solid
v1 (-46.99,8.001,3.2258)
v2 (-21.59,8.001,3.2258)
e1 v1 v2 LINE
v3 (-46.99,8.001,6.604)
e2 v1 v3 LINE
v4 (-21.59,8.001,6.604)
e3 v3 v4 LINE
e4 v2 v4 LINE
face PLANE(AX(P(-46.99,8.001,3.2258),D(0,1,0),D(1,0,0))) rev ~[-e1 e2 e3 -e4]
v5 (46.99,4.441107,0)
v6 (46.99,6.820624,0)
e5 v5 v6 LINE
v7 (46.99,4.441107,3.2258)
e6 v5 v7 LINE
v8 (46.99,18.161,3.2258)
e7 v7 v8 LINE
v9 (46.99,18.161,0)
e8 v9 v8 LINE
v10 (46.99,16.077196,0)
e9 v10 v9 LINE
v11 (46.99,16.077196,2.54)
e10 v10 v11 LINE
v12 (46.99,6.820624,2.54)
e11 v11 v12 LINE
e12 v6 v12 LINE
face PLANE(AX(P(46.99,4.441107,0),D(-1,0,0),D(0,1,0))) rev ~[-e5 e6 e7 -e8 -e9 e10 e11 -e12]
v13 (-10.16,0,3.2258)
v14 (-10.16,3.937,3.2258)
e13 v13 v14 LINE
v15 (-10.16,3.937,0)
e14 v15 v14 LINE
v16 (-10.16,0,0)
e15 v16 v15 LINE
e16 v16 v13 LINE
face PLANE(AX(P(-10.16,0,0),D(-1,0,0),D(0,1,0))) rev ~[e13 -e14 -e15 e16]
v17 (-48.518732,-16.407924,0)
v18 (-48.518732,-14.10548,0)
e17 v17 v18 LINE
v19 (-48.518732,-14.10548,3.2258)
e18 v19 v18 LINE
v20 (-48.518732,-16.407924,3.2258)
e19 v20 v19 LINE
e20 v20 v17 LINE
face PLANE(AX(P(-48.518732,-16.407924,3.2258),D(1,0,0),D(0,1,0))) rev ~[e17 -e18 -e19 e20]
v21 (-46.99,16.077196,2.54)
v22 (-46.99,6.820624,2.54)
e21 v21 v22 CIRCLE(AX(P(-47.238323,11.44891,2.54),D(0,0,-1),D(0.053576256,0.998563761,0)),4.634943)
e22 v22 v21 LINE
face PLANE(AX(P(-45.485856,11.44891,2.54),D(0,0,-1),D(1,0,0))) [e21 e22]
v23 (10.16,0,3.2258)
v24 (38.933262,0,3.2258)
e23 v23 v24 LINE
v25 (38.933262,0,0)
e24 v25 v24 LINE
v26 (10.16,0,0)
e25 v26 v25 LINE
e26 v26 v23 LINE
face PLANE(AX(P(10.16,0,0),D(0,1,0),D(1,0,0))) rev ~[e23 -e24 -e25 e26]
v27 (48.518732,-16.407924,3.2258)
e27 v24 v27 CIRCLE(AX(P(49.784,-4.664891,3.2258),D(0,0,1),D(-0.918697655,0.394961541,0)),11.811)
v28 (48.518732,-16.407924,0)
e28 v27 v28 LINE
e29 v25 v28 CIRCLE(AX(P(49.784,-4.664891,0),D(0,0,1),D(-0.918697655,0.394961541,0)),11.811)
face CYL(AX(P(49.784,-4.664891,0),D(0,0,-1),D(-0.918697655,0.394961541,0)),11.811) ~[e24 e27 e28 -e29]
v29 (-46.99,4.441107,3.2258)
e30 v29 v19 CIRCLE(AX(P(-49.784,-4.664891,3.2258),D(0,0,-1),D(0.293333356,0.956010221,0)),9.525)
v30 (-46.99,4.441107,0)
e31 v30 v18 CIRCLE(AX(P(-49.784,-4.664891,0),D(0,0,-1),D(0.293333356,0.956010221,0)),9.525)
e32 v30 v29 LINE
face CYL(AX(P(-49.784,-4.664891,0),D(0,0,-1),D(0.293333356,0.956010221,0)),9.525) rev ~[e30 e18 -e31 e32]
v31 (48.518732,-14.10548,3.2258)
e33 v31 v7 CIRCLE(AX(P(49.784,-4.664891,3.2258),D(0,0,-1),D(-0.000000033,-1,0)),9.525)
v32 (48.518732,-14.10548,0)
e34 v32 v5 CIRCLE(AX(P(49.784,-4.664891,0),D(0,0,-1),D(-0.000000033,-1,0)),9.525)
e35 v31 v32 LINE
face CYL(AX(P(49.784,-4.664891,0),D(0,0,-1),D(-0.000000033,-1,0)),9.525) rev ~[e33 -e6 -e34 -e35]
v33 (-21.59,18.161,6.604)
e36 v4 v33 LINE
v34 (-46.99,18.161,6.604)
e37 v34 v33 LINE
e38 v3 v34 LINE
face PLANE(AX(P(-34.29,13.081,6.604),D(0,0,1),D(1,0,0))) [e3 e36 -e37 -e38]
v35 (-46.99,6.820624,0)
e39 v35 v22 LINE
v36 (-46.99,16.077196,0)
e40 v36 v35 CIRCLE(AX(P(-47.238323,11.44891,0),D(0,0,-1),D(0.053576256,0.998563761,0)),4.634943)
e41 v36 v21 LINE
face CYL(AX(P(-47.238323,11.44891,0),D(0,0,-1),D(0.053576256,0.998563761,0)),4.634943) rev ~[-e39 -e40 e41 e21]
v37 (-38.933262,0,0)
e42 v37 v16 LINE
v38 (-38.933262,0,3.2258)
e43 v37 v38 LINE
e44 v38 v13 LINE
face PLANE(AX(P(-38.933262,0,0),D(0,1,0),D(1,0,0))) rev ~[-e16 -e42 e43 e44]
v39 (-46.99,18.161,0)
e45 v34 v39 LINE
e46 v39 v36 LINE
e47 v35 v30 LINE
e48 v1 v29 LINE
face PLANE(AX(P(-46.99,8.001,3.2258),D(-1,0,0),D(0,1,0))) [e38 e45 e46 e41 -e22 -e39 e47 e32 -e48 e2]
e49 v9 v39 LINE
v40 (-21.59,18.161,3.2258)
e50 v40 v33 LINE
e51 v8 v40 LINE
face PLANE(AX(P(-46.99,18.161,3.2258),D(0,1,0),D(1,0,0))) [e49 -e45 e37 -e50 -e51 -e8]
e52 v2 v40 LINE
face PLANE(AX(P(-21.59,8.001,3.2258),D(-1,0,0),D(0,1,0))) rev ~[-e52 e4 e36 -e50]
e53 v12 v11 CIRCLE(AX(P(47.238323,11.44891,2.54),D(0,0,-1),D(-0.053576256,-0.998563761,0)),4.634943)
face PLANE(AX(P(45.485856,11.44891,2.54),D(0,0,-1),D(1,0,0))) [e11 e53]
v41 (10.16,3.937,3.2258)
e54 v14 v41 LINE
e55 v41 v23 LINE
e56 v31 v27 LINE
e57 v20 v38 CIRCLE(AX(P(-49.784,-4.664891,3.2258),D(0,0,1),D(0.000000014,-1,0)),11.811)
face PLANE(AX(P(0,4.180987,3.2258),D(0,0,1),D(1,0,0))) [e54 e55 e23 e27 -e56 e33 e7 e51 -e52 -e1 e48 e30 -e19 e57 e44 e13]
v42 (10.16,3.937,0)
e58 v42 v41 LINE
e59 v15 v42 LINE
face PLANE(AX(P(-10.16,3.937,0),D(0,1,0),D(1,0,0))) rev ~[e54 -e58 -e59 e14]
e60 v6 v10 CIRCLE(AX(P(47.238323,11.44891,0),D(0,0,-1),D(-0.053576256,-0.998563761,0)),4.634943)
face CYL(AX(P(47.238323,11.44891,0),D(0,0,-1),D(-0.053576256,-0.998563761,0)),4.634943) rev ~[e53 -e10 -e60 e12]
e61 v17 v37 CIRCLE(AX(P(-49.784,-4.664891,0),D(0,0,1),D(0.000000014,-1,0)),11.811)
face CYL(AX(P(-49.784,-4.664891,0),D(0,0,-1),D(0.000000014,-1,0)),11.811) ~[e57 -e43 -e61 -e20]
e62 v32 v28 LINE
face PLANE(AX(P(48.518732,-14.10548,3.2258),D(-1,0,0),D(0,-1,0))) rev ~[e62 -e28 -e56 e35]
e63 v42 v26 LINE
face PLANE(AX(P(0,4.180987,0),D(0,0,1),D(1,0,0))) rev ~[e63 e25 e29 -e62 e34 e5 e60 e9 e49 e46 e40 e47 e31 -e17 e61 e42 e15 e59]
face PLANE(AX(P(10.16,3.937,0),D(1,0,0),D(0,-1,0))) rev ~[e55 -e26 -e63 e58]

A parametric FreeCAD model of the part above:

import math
import FreeCAD as App
import Part
import Sketcher
from FreeCAD import Vector
Q = App.Units.Quantity

doc = App.newDocument("Part")
body = doc.addObject("PartDesign::Body", "Body")

# Sketch on XY plane
sketch1 = body.newObject("Sketcher::SketchObject", "Sketch")
sketch1.AttachmentSupport = (doc.getObject("XY_Plane"), [""])
sketch1.MapMode = "FlatFace"
sketch1.addGeometry(Part.LineSegment(Vector(46.99, 18.161, 0), Vector(-46.99, 18.161, 0)), False)
sketch1.addGeometry(Part.LineSegment(Vector(-46.99, 18.161, 0), Vector(-46.99, 4.441107, 0)), False)
sketch1.addGeometry(Part.ArcOfCircle(Part.Circle(Vector(-49.784, -4.664891, 0), Vector(0, 0, 1), 9.525), math.radians(-89.999998), math.radians(72.942375)), False)
sketch1.addGeometry(Part.LineSegment(Vector(-49.784, -14.189891, 0), Vector(-49.784, -16.475891, 0)), False)
sketch1.addGeometry(Part.ArcOfCircle(Part.Circle(Vector(-49.784, -4.664891, 0), Vector(0, 0, 1), 11.811), math.radians(-89.999999), math.radians(23.263575)), False)
sketch1.addGeometry(Part.LineSegment(Vector(-38.933262, 0, 0), Vector(-10.16, 0, 0)), False)
sketch1.addGeometry(Part.LineSegment(Vector(-10.16, 0, 0), Vector(-10.16, 3.937, 0)), False)
sketch1.addGeometry(Part.LineSegment(Vector(-10.16, 3.937, 0), Vector(10.16, 3.937, 0)), False)
sketch1.addGeometry(Part.LineSegment(Vector(10.16, 3.937, 0), Vector(10.16, 0, 0)), False)
sketch1.addGeometry(Part.LineSegment(Vector(10.16, 0, 0), Vector(38.933262, 0, 0)), False)
sketch1.addGeometry(Part.ArcOfCircle(Part.Circle(Vector(49.784, -4.664891, 0), Vector(0, 0, 1), 11.811), math.radians(156.736425), math.radians(269.999999)), False)
sketch1.addGeometry(Part.LineSegment(Vector(49.784, -16.475891, 0), Vector(49.784, -14.189891, 0)), False)
sketch1.addGeometry(Part.ArcOfCircle(Part.Circle(Vector(49.784, -4.664891, 0), Vector(0, 0, 1), 9.525), math.radians(107.057625), math.radians(269.999998)), False)
sketch1.addGeometry(Part.LineSegment(Vector(46.99, 4.441107, 0), Vector(46.99, 18.161, 0)), False)
sketch1.addConstraint(Sketcher.Constraint("Coincident", 0, 2, 1, 1))
sketch1.addConstraint(Sketcher.Constraint("Coincident", 1, 2, 2, 2))
sketch1.addConstraint(Sketcher.Constraint("Coincident", 2, 1, 3, 1))
sketch1.addConstraint(Sketcher.Constraint("Coincident", 3, 2, 4, 1))
sketch1.addConstraint(Sketcher.Constraint("Coincident", 4, 2, 5, 1))
sketch1.addConstraint(Sketcher.Constraint("Coincident", 5, 2, 6, 1))
sketch1.addConstraint(Sketcher.Constraint("Coincident", 6, 2, 7, 1))
sketch1.addConstraint(Sketcher.Constraint("Coincident", 7, 2, 8, 1))
sketch1.addConstraint(Sketcher.Constraint("Coincident", 8, 2, 9, 1))
sketch1.addConstraint(Sketcher.Constraint("Coincident", 9, 2, 10, 1))
sketch1.addConstraint(Sketcher.Constraint("Coincident", 10, 2, 11, 1))
sketch1.addConstraint(Sketcher.Constraint("Coincident", 11, 2, 12, 2))
sketch1.addConstraint(Sketcher.Constraint("Coincident", 12, 1, 13, 1))
sketch1.addConstraint(Sketcher.Constraint("Coincident", 13, 2, 0, 1))
sketch1.addConstraint(Sketcher.Constraint("Horizontal", 0))
sketch1.addConstraint(Sketcher.Constraint("Vertical", 1))
sketch1.addConstraint(Sketcher.Constraint("Vertical", 3))
sketch1.addConstraint(Sketcher.Constraint("Horizontal", 5))
sketch1.addConstraint(Sketcher.Constraint("Vertical", 6))
sketch1.addConstraint(Sketcher.Constraint("Horizontal", 7))
sketch1.addConstraint(Sketcher.Constraint("Vertical", 8))
sketch1.addConstraint(Sketcher.Constraint("Horizontal", 9))
sketch1.addConstraint(Sketcher.Constraint("Vertical", 11))
sketch1.addConstraint(Sketcher.Constraint("Vertical", 13))
sketch1.addConstraint(Sketcher.Constraint("Coincident", 4, 3, 2, 3))
sketch1.addConstraint(Sketcher.Constraint("Coincident", 12, 3, 10, 3))
sketch1.addConstraint(Sketcher.Constraint("Equal", 4, 10))
sketch1.addConstraint(Sketcher.Constraint("Equal", 2, 12))
sketch1.addConstraint(Sketcher.Constraint("Symmetric", 5, 2, 8, 2, -1, 1))
sketch1.addConstraint(Sketcher.Constraint("Symmetric", 2, 3, 10, 3, -2))
sketch1.addConstraint(Sketcher.Constraint("PointOnObject", 4, 2, -1))
sketch1.addConstraint(Sketcher.Constraint("Horizontal", 1, 2, 12, 1))
sketch1.addConstraint(Sketcher.Constraint("Vertical", 4, 3, 2, 1))
sketch1.addConstraint(Sketcher.Constraint("Vertical", 12, 3, 10, 2))
sketch1.addConstraint(Sketcher.Constraint("DistanceX", 0, 2, 0, 1, Q("3.7 in")))
sketch1.addConstraint(Sketcher.Constraint("DistanceX", 7, 1, 7, 2, Q("0.8 in")))
sketch1.addConstraint(Sketcher.Constraint("Radius", 2, Q("0.375 in")))
sketch1.addConstraint(Sketcher.Constraint("Radius", 4, Q("0.465 in")))
sketch1.addConstraint(Sketcher.Constraint("DistanceY", 6, 1, 6, 2, Q("0.155 in")))
sketch1.addConstraint(Sketcher.Constraint("DistanceX", 2, 3, -1, 1, Q("1.96 in")))
sketch1.addConstraint(Sketcher.Constraint("DistanceY", 6, 2, 0, 2, Q("0.56 in")))
sketch1.addConstraint(Sketcher.Constraint("DistanceX", 5, 1, 5, 2, 28.773262))
pad1 = body.newObject("PartDesign::Pad", "Pad")
pad1.Profile = sketch1
pad1.Length = Q("0.127 in")

# Sketch on XY plane
sketch2 = body.newObject("Sketcher::SketchObject", "Sketch001")
sketch2.AttachmentSupport = (doc.getObject("XY_Plane"), [""])
sketch2.MapMode = "FlatFace"
sketch2.AttachmentOffset = App.Placement(Vector(0, 0, 0.127 * 25.4), App.Rotation())
sketch2.addGeometry(Part.LineSegment(Vector(-46.99, 18.161, 0), Vector(-46.99, 8.001, 0)), False)
sketch2.addGeometry(Part.LineSegment(Vector(-46.99, 8.001, 0), Vector(-21.59, 8.001, 0)), False)
sketch2.addGeometry(Part.LineSegment(Vector(-21.59, 8.001, 0), Vector(-21.59, 18.161, 0)), False)
sketch2.addGeometry(Part.LineSegment(Vector(-21.59, 18.161, 0), Vector(-46.99, 18.161, 0)), False)
sketch2.addConstraint(Sketcher.Constraint("Coincident", 0, 2, 1, 1))
sketch2.addConstraint(Sketcher.Constraint("Coincident", 1, 2, 2, 1))
sketch2.addConstraint(Sketcher.Constraint("Coincident", 2, 2, 3, 1))
sketch2.addConstraint(Sketcher.Constraint("Coincident", 3, 2, 0, 1))
sketch2.addConstraint(Sketcher.Constraint("Vertical", 0))
sketch2.addConstraint(Sketcher.Constraint("Horizontal", 1))
sketch2.addConstraint(Sketcher.Constraint("Vertical", 2))
sketch2.addConstraint(Sketcher.Constraint("Horizontal", 3))
sketch2.addConstraint(Sketcher.Constraint("DistanceX", 1, 1, 1, 2, Q("1 in")))
sketch2.addConstraint(Sketcher.Constraint("DistanceY", 0, 2, 0, 1, Q("0.4 in")))
sketch2.addConstraint(Sketcher.Constraint("DistanceX", 0, 2, -1, 1, Q("1.85 in")))
sketch2.addConstraint(Sketcher.Constraint("DistanceY", -1, 1, 0, 2, Q("0.315 in")))
pad2 = body.newObject("PartDesign::Pad", "Pad001")
pad2.Profile = sketch2
pad2.Length = Q("0.133 in")

# Sketch on XY plane
sketch3 = body.newObject("Sketcher::SketchObject", "Sketch002")
sketch3.AttachmentSupport = (doc.getObject("XY_Plane"), [""])
sketch3.MapMode = "FlatFace"
sketch3.addGeometry(Part.LineSegment(Vector(-46.99, 6.820624, 0), Vector(-46.99, 16.077196, 0)), False)
sketch3.addGeometry(Part.ArcOfCircle(Part.Circle(Vector(-47.238323, 11.44891, 0), Vector(0, 0, 1), 4.634943), math.radians(-86.928836), math.radians(86.928836)), False)
sketch3.addGeometry(Part.ArcOfCircle(Part.Circle(Vector(47.238323, 11.44891, 0), Vector(0, 0, 1), 4.634943), math.radians(93.071164), math.radians(266.928836)), False)
sketch3.addGeometry(Part.LineSegment(Vector(46.99, 16.077196, 0), Vector(46.99, 6.820624, 0)), False)
sketch3.addConstraint(Sketcher.Constraint("Coincident", 0, 1, 1, 1))
sketch3.addConstraint(Sketcher.Constraint("Coincident", 1, 2, 0, 2))
sketch3.addConstraint(Sketcher.Constraint("Coincident", 2, 1, 3, 1))
sketch3.addConstraint(Sketcher.Constraint("Coincident", 3, 2, 2, 2))
sketch3.addConstraint(Sketcher.Constraint("Vertical", 0))
sketch3.addConstraint(Sketcher.Constraint("Vertical", 3))
sketch3.addConstraint(Sketcher.Constraint("Equal", 1, 2))
sketch3.addConstraint(Sketcher.Constraint("Symmetric", 1, 3, 2, 3, -2))
sketch3.addConstraint(Sketcher.Constraint("Horizontal", 1, 2, 2, 1))
sketch3.addConstraint(Sketcher.Constraint("DistanceX", 1, 2, 2, 1, Q("3.7 in")))
sketch3.addConstraint(Sketcher.Constraint("Radius", 1, 4.634943))
sketch3.addConstraint(Sketcher.Constraint("DistanceY", 0, 1, 0, 2, 9.256572))
sketch3.addConstraint(Sketcher.Constraint("DistanceY", -1, 1, 1, 3, 11.44891))
pocket1 = body.newObject("PartDesign::Pocket", "Pocket")
pocket1.Profile = sketch3
pocket1.Length = Q("0.1 in")
pocket1.Reversed = True

# Sketch on XY plane
sketch4 = body.newObject("Sketcher::SketchObject", "Sketch003")
sketch4.AttachmentSupport = (doc.getObject("XY_Plane"), [""])
sketch4.MapMode = "FlatFace"
sketch4.AttachmentOffset = App.Placement(Vector(0, 0, 0.127 * 25.4), App.Rotation())
sketch4.addGeometry(Part.LineSegment(Vector(-48.518732, -16.407924, 0), Vector(-48.518732, -14.10548, 0)), False)
sketch4.addGeometry(Part.ArcOfCircle(Part.Circle(Vector(-49.783993, -4.665, 0), Vector(0, 0, 1), 9.524891), math.radians(-90.000041), math.radians(-82.366418)), False)
sketch4.addGeometry(Part.LineSegment(Vector(-49.784, -14.189891, 0), Vector(-49.784, -16.475891, 0)), False)
sketch4.addGeometry(Part.ArcOfCircle(Part.Circle(Vector(-49.784001, -4.664835, 0), Vector(0, 0, 1), 11.811056), math.radians(-89.999997), math.radians(-83.850344)), False)
sketch4.addGeometry(Part.ArcOfCircle(Part.Circle(Vector(49.784001, -4.664835, 0), Vector(0, 0, 1), 11.811056), math.radians(-96.149656), math.radians(-90.000003)), False)
sketch4.addGeometry(Part.LineSegment(Vector(49.784, -16.475891, 0), Vector(49.784, -14.189891, 0)), False)
sketch4.addGeometry(Part.ArcOfCircle(Part.Circle(Vector(49.783993, -4.665, 0), Vector(0, 0, 1), 9.524891), math.radians(-97.633582), math.radians(-89.999959)), False)
sketch4.addGeometry(Part.LineSegment(Vector(48.518732, -14.10548, 0), Vector(48.518732, -16.407924, 0)), False)
sketch4.addConstraint(Sketcher.Constraint("Coincident", 0, 2, 1, 2))
sketch4.addConstraint(Sketcher.Constraint("Coincident", 1, 1, 2, 1))
sketch4.addConstraint(Sketcher.Constraint("Coincident", 2, 2, 3, 1))
sketch4.addConstraint(Sketcher.Constraint("Coincident", 3, 2, 0, 1))
sketch4.addConstraint(Sketcher.Constraint("Coincident", 4, 2, 5, 1))
sketch4.addConstraint(Sketcher.Constraint("Coincident", 5, 2, 6, 2))
sketch4.addConstraint(Sketcher.Constraint("Coincident", 6, 1, 7, 1))
sketch4.addConstraint(Sketcher.Constraint("Coincident", 7, 2, 4, 1))
sketch4.addConstraint(Sketcher.Constraint("Vertical", 0))
sketch4.addConstraint(Sketcher.Constraint("Vertical", 2))
sketch4.addConstraint(Sketcher.Constraint("Vertical", 5))
sketch4.addConstraint(Sketcher.Constraint("Vertical", 7))
sketch4.addConstraint(Sketcher.Constraint("Equal", 3, 4))
sketch4.addConstraint(Sketcher.Constraint("Equal", 1, 6))
sketch4.addConstraint(Sketcher.Constraint("Symmetric", 3, 3, 4, 3, -2))
sketch4.addConstraint(Sketcher.Constraint("Symmetric", 1, 3, 6, 3, -2))
sketch4.addConstraint(Sketcher.Constraint("Horizontal", 0, 2, 6, 1))
sketch4.addConstraint(Sketcher.Constraint("Vertical", 3, 3, 1, 1))
sketch4.addConstraint(Sketcher.Constraint("DistanceY", 2, 2, 2, 1, Q("0.09 in")))
sketch4.addConstraint(Sketcher.Constraint("DistanceX", 3, 3, -1, 1, Q("1.96 in")))
sketch4.addConstraint(Sketcher.Constraint("DistanceX", -1, 1, 4, 2, Q("1.96 in")))
sketch4.addConstraint(Sketcher.Constraint("Radius", 1, 9.524891))
sketch4.addConstraint(Sketcher.Constraint("Radius", 3, 11.811056))
sketch4.addConstraint(Sketcher.Constraint("DistanceY", 1, 3, -1, 1, 4.665))
sketch4.addConstraint(Sketcher.Constraint("DistanceY", 0, 1, 0, 2, 2.302444))
sketch4.addConstraint(Sketcher.Constraint("DistanceY", 0, 2, -1, 1, 14.10548))
pocket2 = body.newObject("PartDesign::Pocket", "Pocket001")
pocket2.Profile = sketch4
pocket2.Type = "ThroughAll"

doc.recompute()
